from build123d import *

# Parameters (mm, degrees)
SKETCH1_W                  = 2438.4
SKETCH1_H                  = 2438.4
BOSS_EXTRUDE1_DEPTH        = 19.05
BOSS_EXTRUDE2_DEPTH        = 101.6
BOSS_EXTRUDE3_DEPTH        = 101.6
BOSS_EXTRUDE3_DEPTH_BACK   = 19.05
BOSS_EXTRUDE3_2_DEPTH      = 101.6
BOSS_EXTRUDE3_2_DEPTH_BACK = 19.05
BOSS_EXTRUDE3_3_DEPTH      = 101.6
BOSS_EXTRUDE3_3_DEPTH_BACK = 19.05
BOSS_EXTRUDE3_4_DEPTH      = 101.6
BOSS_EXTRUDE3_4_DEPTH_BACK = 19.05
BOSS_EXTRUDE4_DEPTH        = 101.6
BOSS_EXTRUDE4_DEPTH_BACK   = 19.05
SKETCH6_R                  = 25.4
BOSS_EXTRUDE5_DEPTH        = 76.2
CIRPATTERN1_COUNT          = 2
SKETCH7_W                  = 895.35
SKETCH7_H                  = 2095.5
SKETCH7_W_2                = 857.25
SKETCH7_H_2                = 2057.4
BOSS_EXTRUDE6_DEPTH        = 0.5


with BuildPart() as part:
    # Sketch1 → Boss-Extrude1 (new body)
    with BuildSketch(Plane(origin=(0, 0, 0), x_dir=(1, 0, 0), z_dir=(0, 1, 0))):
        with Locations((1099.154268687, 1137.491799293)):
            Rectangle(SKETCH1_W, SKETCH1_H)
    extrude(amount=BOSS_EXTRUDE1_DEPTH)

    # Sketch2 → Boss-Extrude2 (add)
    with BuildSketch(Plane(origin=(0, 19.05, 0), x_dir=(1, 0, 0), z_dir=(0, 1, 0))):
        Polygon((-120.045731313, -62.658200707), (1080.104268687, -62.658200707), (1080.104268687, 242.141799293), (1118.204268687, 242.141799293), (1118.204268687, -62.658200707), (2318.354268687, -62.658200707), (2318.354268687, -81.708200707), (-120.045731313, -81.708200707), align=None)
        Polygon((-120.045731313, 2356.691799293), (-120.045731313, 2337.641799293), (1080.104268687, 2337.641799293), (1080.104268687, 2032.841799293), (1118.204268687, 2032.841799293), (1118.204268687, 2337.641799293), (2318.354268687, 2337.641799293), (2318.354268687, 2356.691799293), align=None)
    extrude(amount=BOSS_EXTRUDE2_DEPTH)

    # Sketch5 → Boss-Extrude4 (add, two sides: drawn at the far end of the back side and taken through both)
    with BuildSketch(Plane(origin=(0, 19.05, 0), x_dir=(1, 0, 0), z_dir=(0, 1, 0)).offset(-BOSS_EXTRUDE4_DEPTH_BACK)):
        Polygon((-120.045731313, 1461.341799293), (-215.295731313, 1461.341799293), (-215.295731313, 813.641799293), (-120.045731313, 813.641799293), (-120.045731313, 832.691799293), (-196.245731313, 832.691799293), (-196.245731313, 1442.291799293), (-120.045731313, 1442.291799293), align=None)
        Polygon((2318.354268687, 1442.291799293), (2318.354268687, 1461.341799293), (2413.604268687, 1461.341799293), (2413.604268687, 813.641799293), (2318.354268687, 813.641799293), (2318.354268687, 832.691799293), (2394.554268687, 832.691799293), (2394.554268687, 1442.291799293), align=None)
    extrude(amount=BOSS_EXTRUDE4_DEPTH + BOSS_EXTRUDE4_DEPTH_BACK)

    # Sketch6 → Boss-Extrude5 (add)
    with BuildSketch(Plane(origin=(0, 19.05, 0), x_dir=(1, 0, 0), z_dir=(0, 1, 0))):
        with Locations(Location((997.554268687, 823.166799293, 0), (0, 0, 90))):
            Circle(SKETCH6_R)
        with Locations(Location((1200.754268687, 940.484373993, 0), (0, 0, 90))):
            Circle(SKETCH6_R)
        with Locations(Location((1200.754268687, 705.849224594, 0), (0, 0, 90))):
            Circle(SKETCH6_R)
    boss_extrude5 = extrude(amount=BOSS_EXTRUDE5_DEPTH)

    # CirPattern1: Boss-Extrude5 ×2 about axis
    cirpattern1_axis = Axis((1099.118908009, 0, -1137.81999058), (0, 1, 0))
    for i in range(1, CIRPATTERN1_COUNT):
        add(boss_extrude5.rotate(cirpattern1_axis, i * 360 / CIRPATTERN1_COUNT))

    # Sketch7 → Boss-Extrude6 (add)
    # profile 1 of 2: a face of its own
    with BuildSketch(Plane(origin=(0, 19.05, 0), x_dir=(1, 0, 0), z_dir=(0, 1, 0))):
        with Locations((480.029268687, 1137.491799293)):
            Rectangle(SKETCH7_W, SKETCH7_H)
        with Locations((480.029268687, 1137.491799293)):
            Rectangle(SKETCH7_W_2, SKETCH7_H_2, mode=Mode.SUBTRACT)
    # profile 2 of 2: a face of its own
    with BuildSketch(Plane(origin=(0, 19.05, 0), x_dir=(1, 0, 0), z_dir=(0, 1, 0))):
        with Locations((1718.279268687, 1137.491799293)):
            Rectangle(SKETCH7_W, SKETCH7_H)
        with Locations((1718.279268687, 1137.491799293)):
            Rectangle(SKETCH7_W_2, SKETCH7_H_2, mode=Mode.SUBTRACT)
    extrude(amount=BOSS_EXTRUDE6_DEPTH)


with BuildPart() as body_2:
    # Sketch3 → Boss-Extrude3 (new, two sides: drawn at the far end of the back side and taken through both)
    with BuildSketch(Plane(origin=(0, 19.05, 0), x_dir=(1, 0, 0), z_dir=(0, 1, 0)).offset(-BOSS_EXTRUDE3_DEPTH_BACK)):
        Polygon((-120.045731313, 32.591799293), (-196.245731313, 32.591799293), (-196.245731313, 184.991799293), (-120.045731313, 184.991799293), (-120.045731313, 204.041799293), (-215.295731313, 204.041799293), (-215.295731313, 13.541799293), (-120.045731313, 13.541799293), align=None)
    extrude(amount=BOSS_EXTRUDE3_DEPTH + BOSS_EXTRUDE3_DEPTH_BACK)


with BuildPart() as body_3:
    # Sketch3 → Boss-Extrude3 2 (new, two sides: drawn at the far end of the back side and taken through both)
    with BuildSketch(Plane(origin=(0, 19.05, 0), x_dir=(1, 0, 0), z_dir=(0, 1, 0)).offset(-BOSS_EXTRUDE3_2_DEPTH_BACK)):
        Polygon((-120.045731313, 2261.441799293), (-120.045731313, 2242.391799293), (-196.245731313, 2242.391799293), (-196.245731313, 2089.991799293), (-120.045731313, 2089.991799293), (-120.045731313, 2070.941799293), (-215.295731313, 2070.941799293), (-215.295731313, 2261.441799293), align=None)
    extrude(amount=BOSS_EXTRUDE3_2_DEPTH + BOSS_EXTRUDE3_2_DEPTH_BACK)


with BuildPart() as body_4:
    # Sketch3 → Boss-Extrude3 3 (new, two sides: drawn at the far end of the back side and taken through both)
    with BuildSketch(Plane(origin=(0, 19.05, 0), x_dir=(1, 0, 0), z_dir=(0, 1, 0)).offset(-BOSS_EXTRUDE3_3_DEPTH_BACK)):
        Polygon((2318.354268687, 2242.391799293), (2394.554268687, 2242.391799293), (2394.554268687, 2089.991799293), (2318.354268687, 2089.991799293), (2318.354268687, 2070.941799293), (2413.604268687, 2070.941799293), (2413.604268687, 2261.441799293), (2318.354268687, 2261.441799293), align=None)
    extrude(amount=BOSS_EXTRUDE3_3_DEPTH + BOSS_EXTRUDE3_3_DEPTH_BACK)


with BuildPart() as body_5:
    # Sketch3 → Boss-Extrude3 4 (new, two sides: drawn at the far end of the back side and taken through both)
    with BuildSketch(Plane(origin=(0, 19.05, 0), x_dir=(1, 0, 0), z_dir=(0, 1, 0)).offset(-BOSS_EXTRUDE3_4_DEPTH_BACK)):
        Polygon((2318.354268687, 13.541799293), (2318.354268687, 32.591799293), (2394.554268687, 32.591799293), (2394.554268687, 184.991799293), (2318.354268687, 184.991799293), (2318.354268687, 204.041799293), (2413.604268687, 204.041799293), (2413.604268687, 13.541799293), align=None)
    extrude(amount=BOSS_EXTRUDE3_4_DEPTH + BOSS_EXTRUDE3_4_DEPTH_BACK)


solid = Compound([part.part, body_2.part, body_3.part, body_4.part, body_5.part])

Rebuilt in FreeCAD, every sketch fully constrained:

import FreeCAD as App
import Part
import Sketcher
Q = App.Units.Quantity

doc = App.newDocument("Part")
body = doc.addObject("PartDesign::Body", "Body")

sketch1 = body.newObject("Sketcher::SketchObject", "Sketch")
sketch1.AttachmentSupport = (doc.getObject("XZ_Plane"), [""])
sketch1.MapMode = "FlatFace"
sketch1.addGeometry([
    Part.LineSegment(App.Vector(-120.045731, -2356.691799, 0), App.Vector(-120.045731, 81.708201, 0)),
    Part.LineSegment(App.Vector(-120.045731, 81.708201, 0), App.Vector(2318.354269, 81.708201, 0)),
    Part.LineSegment(App.Vector(2318.354269, 81.708201, 0), App.Vector(2318.354269, -2356.691799, 0)),
    Part.LineSegment(App.Vector(2318.354269, -2356.691799, 0), App.Vector(-120.045731, -2356.691799, 0)),
], False)
sketch1.addConstraint([
    Sketcher.Constraint("Coincident", 0, 2, 1, 1),
    Sketcher.Constraint("Coincident", 1, 2, 2, 1),
    Sketcher.Constraint("Coincident", 2, 2, 3, 1),
    Sketcher.Constraint("Coincident", 3, 2, 0, 1),
    Sketcher.Constraint("Vertical", 0),
    Sketcher.Constraint("Horizontal", 1),
    Sketcher.Constraint("Vertical", 2),
    Sketcher.Constraint("Horizontal", 3),
    Sketcher.Constraint("Equal", 3, 0),
    Sketcher.Constraint("DistanceX", 1, 1, 1, 2, Q("96 in")),
    Sketcher.Constraint("DistanceY", -1, 1, 0, 2, Q("81.708201 mm")),
    Sketcher.Constraint("DistanceX", 0, 2, -1, 1, Q("120.045731 mm")),
])
pad1 = body.newObject("PartDesign::Pad", "Pad")
pad1.Profile = sketch1
pad1.Length = Q("0.75 in")
pad1.Reversed = True

sketch2 = body.newObject("Sketcher::SketchObject", "Sketch001")
sketch2.AttachmentSupport = (doc.getObject("XZ_Plane"), [""])
sketch2.MapMode = "FlatFace"
sketch2.AttachmentOffset = App.Placement(App.Vector(0, 0, -0.75 * 25.4), App.Rotation())
sketch2.addGeometry([
    Part.LineSegment(App.Vector(1080.104269, 62.658201, 0), App.Vector(-120.045731, 62.658201, 0)),
    Part.LineSegment(App.Vector(-120.045731, 62.658201, 0), App.Vector(-120.045731, 81.708201, 0)),
    Part.LineSegment(App.Vector(-120.045731, 81.708201, 0), App.Vector(2318.354269, 81.708201, 0)),
    Part.LineSegment(App.Vector(2318.354269, 81.708201, 0), App.Vector(2318.354269, 62.658201, 0)),
    Part.LineSegment(App.Vector(2318.354269, 62.658201, 0), App.Vector(1118.204269, 62.658201, 0)),
    Part.LineSegment(App.Vector(1118.204269, 62.658201, 0), App.Vector(1118.204269, -242.141799, 0)),
    Part.LineSegment(App.Vector(1118.204269, -242.141799, 0), App.Vector(1080.104269, -242.141799, 0)),
    Part.LineSegment(App.Vector(1080.104269, -242.141799, 0), App.Vector(1080.104269, 62.658201, 0)),
    Part.LineSegment(App.Vector(-120.045731, -2356.691799, 0), App.Vector(-120.045731, -2337.641799, 0)),
    Part.LineSegment(App.Vector(-120.045731, -2337.641799, 0), App.Vector(1080.104269, -2337.641799, 0)),
    Part.LineSegment(App.Vector(1080.104269, -2337.641799, 0), App.Vector(1080.104269, -2032.841799, 0)),
    Part.LineSegment(App.Vector(1080.104269, -2032.841799, 0), App.Vector(1118.204269, -2032.841799, 0)),
    Part.LineSegment(App.Vector(1118.204269, -2032.841799, 0), App.Vector(1118.204269, -2337.641799, 0)),
    Part.LineSegment(App.Vector(1118.204269, -2337.641799, 0), App.Vector(2318.354269, -2337.641799, 0)),
    Part.LineSegment(App.Vector(2318.354269, -2337.641799, 0), App.Vector(2318.354269, -2356.691799, 0)),
    Part.LineSegment(App.Vector(2318.354269, -2356.691799, 0), App.Vector(-120.045731, -2356.691799, 0)),
], False)
sketch2.addConstraint([
    Sketcher.Constraint("Coincident", 0, 2, 1, 1),
    Sketcher.Constraint("Coincident", 1, 2, 2, 1),
    Sketcher.Constraint("Coincident", 2, 2, 3, 1),
    Sketcher.Constraint("Coincident", 3, 2, 4, 1),
    Sketcher.Constraint("Coincident", 4, 2, 5, 1),
    Sketcher.Constraint("Coincident", 5, 2, 6, 1),
    Sketcher.Constraint("Coincident", 6, 2, 7, 1),
    Sketcher.Constraint("Coincident", 7, 2, 0, 1),
    Sketcher.Constraint("Coincident", 8, 2, 9, 1),
    Sketcher.Constraint("Coincident", 9, 2, 10, 1),
    Sketcher.Constraint("Coincident", 10, 2, 11, 1),
    Sketcher.Constraint("Coincident", 11, 2, 12, 1),
    Sketcher.Constraint("Coincident", 12, 2, 13, 1),
    Sketcher.Constraint("Coincident", 13, 2, 14, 1),
    Sketcher.Constraint("Coincident", 14, 2, 15, 1),
    Sketcher.Constraint("Coincident", 15, 2, 8, 1),
    Sketcher.Constraint("Horizontal", 0),
    Sketcher.Constraint("Vertical", 1),
    Sketcher.Constraint("Horizontal", 2),
    Sketcher.Constraint("Vertical", 3),
    Sketcher.Constraint("Horizontal", 4),
    Sketcher.Constraint("Vertical", 5),
    Sketcher.Constraint("Horizontal", 6),
    Sketcher.Constraint("Vertical", 7),
    Sketcher.Constraint("Vertical", 8),
    Sketcher.Constraint("Horizontal", 9),
    Sketcher.Constraint("Vertical", 10),
    Sketcher.Constraint("Horizontal", 11),
    Sketcher.Constraint("Vertical", 12),
    Sketcher.Constraint("Horizontal", 13),
    Sketcher.Constraint("Vertical", 14),
    Sketcher.Constraint("Horizontal", 15),
    Sketcher.Constraint("Horizontal", 0, 2, 3, 2),
    Sketcher.Constraint("Horizontal", 9, 2, 12, 2),
    Sketcher.Constraint("Vertical", 1, 2, 8, 2),
    Sketcher.Constraint("Vertical", 7, 2, 9, 2),
    Sketcher.Constraint("Vertical", 5, 2, 11, 2),
    Sketcher.Constraint("Vertical", 3, 2, 13, 2),
    Sketcher.Constraint("Equal", 0, 4),
    Sketcher.Constraint("Equal", 3, 8),
    Sketcher.Constraint("Equal", 7, 10),
    Sketcher.Constraint("DistanceX", 2, 1, 2, 2, Q("96 in")),
    Sketcher.Constraint("DistanceY", 5, 2, 5, 1, Q("12 in")),
    Sketcher.Constraint("DistanceX", 6, 2, 6, 1, Q("1.5 in")),
    Sketcher.Constraint("DistanceY", 1, 1, 1, 2, Q("0.75 in")),
    Sketcher.Constraint("DistanceY", 8, 2, 0, 2, Q("94.5 in")),
    Sketcher.Constraint("DistanceY", -1, 1, 0, 2, Q("62.658201 mm")),
    Sketcher.Constraint("DistanceX", 0, 2, -1, 1, Q("120.045731 mm")),
])
pad2 = body.newObject("PartDesign::Pad", "Pad001")
pad2.Profile = sketch2
pad2.Length = Q("4 in")
pad2.Reversed = True

sketch3 = body.newObject("Sketcher::SketchObject", "Sketch002")
sketch3.AttachmentSupport = (doc.getObject("XZ_Plane"), [""])
sketch3.MapMode = "FlatFace"
sketch3.AttachmentOffset = App.Placement(App.Vector(0, 0, -0.75 * 25.4), App.Rotation())
sketch3.addGeometry([
    Part.LineSegment(App.Vector(-120.045731, -1461.341799, 0), App.Vector(-215.295731, -1461.341799, 0)),
    Part.LineSegment(App.Vector(-215.295731, -1461.341799, 0), App.Vector(-215.295731, -813.641799, 0)),
    Part.LineSegment(App.Vector(-215.295731, -813.641799, 0), App.Vector(-120.045731, -813.641799, 0)),
    Part.LineSegment(App.Vector(-120.045731, -813.641799, 0), App.Vector(-120.045731, -832.691799, 0)),
    Part.LineSegment(App.Vector(-120.045731, -832.691799, 0), App.Vector(-196.245731, -832.691799, 0)),
    Part.LineSegment(App.Vector(-196.245731, -832.691799, 0), App.Vector(-196.245731, -1442.291799, 0)),
    Part.LineSegment(App.Vector(-196.245731, -1442.291799, 0), App.Vector(-120.045731, -1442.291799, 0)),
    Part.LineSegment(App.Vector(-120.045731, -1442.291799, 0), App.Vector(-120.045731, -1461.341799, 0)),
    Part.LineSegment(App.Vector(2318.354269, -1461.341799, 0), App.Vector(2318.354269, -1442.291799, 0)),
    Part.LineSegment(App.Vector(2318.354269, -1442.291799, 0), App.Vector(2394.554269, -1442.291799, 0)),
    Part.LineSegment(App.Vector(2394.554269, -1442.291799, 0), App.Vector(2394.554269, -832.691799, 0)),
    Part.LineSegment(App.Vector(2394.554269, -832.691799, 0), App.Vector(2318.354269, -832.691799, 0)),
    Part.LineSegment(App.Vector(2318.354269, -832.691799, 0), App.Vector(2318.354269, -813.641799, 0)),
    Part.LineSegment(App.Vector(2318.354269, -813.641799, 0), App.Vector(2413.604269, -813.641799, 0)),
    Part.LineSegment(App.Vector(2413.604269, -813.641799, 0), App.Vector(2413.604269, -1461.341799, 0)),
    Part.LineSegment(App.Vector(2413.604269, -1461.341799, 0), App.Vector(2318.354269, -1461.341799, 0)),
], False)
sketch3.addConstraint([
    Sketcher.Constraint("Coincident", 0, 2, 1, 1),
    Sketcher.Constraint("Coincident", 1, 2, 2, 1),
    Sketcher.Constraint("Coincident", 2, 2, 3, 1),
    Sketcher.Constraint("Coincident", 3, 2, 4, 1),
    Sketcher.Constraint("Coincident", 4, 2, 5, 1),
    Sketcher.Constraint("Coincident", 5, 2, 6, 1),
    Sketcher.Constraint("Coincident", 6, 2, 7, 1),
    Sketcher.Constraint("Coincident", 7, 2, 0, 1),
    Sketcher.Constraint("Coincident", 8, 2, 9, 1),
    Sketcher.Constraint("Coincident", 9, 2, 10, 1),
    Sketcher.Constraint("Coincident", 10, 2, 11, 1),
    Sketcher.Constraint("Coincident", 11, 2, 12, 1),
    Sketcher.Constraint("Coincident", 12, 2, 13, 1),
    Sketcher.Constraint("Coincident", 13, 2, 14, 1),
    Sketcher.Constraint("Coincident", 14, 2, 15, 1),
    Sketcher.Constraint("Coincident", 15, 2, 8, 1),
    Sketcher.Constraint("Horizontal", 0),
    Sketcher.Constraint("Vertical", 1),
    Sketcher.Constraint("Horizontal", 2),
    Sketcher.Constraint("Vertical", 3),
    Sketcher.Constraint("Horizontal", 4),
    Sketcher.Constraint("Vertical", 5),
    Sketcher.Constraint("Horizontal", 6),
    Sketcher.Constraint("Vertical", 7),
    Sketcher.Constraint("Vertical", 8),
    Sketcher.Constraint("Horizontal", 9),
    Sketcher.Constraint("Vertical", 10),
    Sketcher.Constraint("Horizontal", 11),
    Sketcher.Constraint("Vertical", 12),
    Sketcher.Constraint("Horizontal", 13),
    Sketcher.Constraint("Vertical", 14),
    Sketcher.Constraint("Horizontal", 15),
    Sketcher.Constraint("Horizontal", 6, 2, 8, 2),
    Sketcher.Constraint("Horizontal", 4, 2, 10, 2),
    Sketcher.Constraint("Horizontal", 2, 2, 12, 2),
    Sketcher.Constraint("Horizontal", 7, 2, 14, 2),
    Sketcher.Constraint("Vertical", 3, 2, 6, 2),
    Sketcher.Constraint("Vertical", 8, 2, 11, 2),
    Sketcher.Constraint("Equal", 6, 9),
    Sketcher.Constraint("Equal", 2, 13),
    Sketcher.Constraint("Equal", 3, 7),
    Sketcher.Constraint("DistanceX", 4, 2, 4, 1, Q("3 in")),
    Sketcher.Constraint("DistanceY", 5, 2, 5, 1, Q("24 in")),
    Sketcher.Constraint("DistanceY", 1, 1, 1, 2, Q("25.5 in")),
    Sketcher.Constraint("DistanceX", 6, 2, 8, 2, Q("96 in")),
    Sketcher.Constraint("DistanceX", 0, 2, 0, 1, Q("3.75 in")),
    Sketcher.Constraint("DistanceY", 0, 2, -1, 1, Q("1461.341799 mm")),
    Sketcher.Constraint("DistanceX", 0, 2, -1, 1, Q("215.295731 mm")),
])
pad3 = body.newObject("PartDesign::Pad", "Pad002")
pad3.Profile = sketch3
pad3.Type = "TwoLengths"
pad3.Length = Q("4 in")
pad3.Length2 = Q("0.75 in")
pad3.Reversed = True

sketch4 = body.newObject("Sketcher::SketchObject", "Sketch003")
sketch4.AttachmentSupport = (doc.getObject("XZ_Plane"), [""])
sketch4.MapMode = "FlatFace"
sketch4.AttachmentOffset = App.Placement(App.Vector(0, 0, -0.75 * 25.4), App.Rotation())
sketch4.addGeometry([
    Part.Circle(App.Vector(997.554269, -823.166799, 0), App.Vector(0, 0, 1), 25.4),
    Part.Circle(App.Vector(1200.754269, -940.484374, 0), App.Vector(0, 0, 1), 25.4),
    Part.Circle(App.Vector(1200.754269, -705.849225, 0), App.Vector(0, 0, 1), 25.4),
], False)
sketch4.addConstraint([
    Sketcher.Constraint("Equal", 0, 1),
    Sketcher.Constraint("Equal", 1, 2),
    Sketcher.Constraint("Vertical", 1, 3, 2, 3),
    Sketcher.Constraint("Diameter", 0, Q("2 in")),
    Sketcher.Constraint("DistanceX", 0, 3, 1, 3, Q("8 in")),
    Sketcher.Constraint("DistanceY", 0, 3, -1, 1, Q("823.166799 mm")),
    Sketcher.Constraint("DistanceX", -1, 1, 0, 3, Q("997.554269 mm")),
    Sketcher.Constraint("DistanceY", 1, 3, 2, 3, Q("234.635149 mm")),
    Sketcher.Constraint("DistanceY", 1, 3, -1, 1, Q("940.484374 mm")),
])
pad4 = body.newObject("PartDesign::Pad", "Pad003")
pad4.Profile = sketch4
pad4.Length = Q("3 in")
pad4.Reversed = True
doc.recompute()

datumline = body.newObject("PartDesign::Line", "DatumLine")
datumline.Placement = App.Placement(App.Vector(1099.118908, 0, -1137.819991), App.Rotation(App.Vector(0, 0, 1), App.Vector(0, 1, 0)))
polarpattern = body.newObject("PartDesign::PolarPattern", "PolarPattern")
polarpattern.Originals = [pad4]
polarpattern.Axis = (datumline, [""])
polarpattern.Angle = 360
polarpattern.Occurrences = 2
body.Tip = polarpattern

sketch5 = body.newObject("Sketcher::SketchObject", "Sketch004")
sketch5.AttachmentSupport = (doc.getObject("XZ_Plane"), [""])
sketch5.MapMode = "FlatFace"
sketch5.AttachmentOffset = App.Placement(App.Vector(0, 0, -0.75 * 25.4), App.Rotation())
sketch5.addGeometry([
    Part.LineSegment(App.Vector(32.354269, -2185.241799, 0), App.Vector(32.354269, -89.741799, 0)),
    Part.LineSegment(App.Vector(32.354269, -89.741799, 0), App.Vector(927.704269, -89.741799, 0)),
    Part.LineSegment(App.Vector(927.704269, -89.741799, 0), App.Vector(927.704269, -2185.241799, 0)),
    Part.LineSegment(App.Vector(927.704269, -2185.241799, 0), App.Vector(32.354269, -2185.241799, 0)),
    Part.LineSegment(App.Vector(908.654269, -108.791799, 0), App.Vector(51.404269, -108.791799, 0)),
    Part.LineSegment(App.Vector(51.404269, -108.791799, 0), App.Vector(51.404269, -2166.191799, 0)),
    Part.LineSegment(App.Vector(51.404269, -2166.191799, 0), App.Vector(908.654269, -2166.191799, 0)),
    Part.LineSegment(App.Vector(908.654269, -2166.191799, 0), App.Vector(908.654269, -108.791799, 0)),
    Part.LineSegment(App.Vector(1270.604269, -2185.241799, 0), App.Vector(1270.604269, -89.741799, 0)),
    Part.LineSegment(App.Vector(1270.604269, -89.741799, 0), App.Vector(2165.954269, -89.741799, 0)),
    Part.LineSegment(App.Vector(2165.954269, -89.741799, 0), App.Vector(2165.954269, -2185.241799, 0)),
    Part.LineSegment(App.Vector(2165.954269, -2185.241799, 0), App.Vector(1270.604269, -2185.241799, 0)),
    Part.LineSegment(App.Vector(2146.904269, -108.791799, 0), App.Vector(1289.654269, -108.791799, 0)),
    Part.LineSegment(App.Vector(1289.654269, -108.791799, 0), App.Vector(1289.654269, -2166.191799, 0)),
    Part.LineSegment(App.Vector(1289.654269, -2166.191799, 0), App.Vector(2146.904269, -2166.191799, 0)),
    Part.LineSegment(App.Vector(2146.904269, -2166.191799, 0), App.Vector(2146.904269, -108.791799, 0)),
], False)
sketch5.addConstraint([
    Sketcher.Constraint("Coincident", 0, 2, 1, 1),
    Sketcher.Constraint("Coincident", 1, 2, 2, 1),
    Sketcher.Constraint("Coincident", 2, 2, 3, 1),
    Sketcher.Constraint("Coincident", 3, 2, 0, 1),
    Sketcher.Constraint("Coincident", 4, 2, 5, 1),
    Sketcher.Constraint("Coincident", 5, 2, 6, 1),
    Sketcher.Constraint("Coincident", 6, 2, 7, 1),
    Sketcher.Constraint("Coincident", 7, 2, 4, 1),
    Sketcher.Constraint("Coincident", 8, 2, 9, 1),
    Sketcher.Constraint("Coincident", 9, 2, 10, 1),
    Sketcher.Constraint("Coincident", 10, 2, 11, 1),
    Sketcher.Constraint("Coincident", 11, 2, 8, 1),
    Sketcher.Constraint("Coincident", 12, 2, 13, 1),
    Sketcher.Constraint("Coincident", 13, 2, 14, 1),
    Sketcher.Constraint("Coincident", 14, 2, 15, 1),
    Sketcher.Constraint("Coincident", 15, 2, 12, 1),
    Sketcher.Constraint("Vertical", 0),
    Sketcher.Constraint("Horizontal", 1),
    Sketcher.Constraint("Vertical", 2),
    Sketcher.Constraint("Horizontal", 3),
    Sketcher.Constraint("Horizontal", 4),
    Sketcher.Constraint("Vertical", 5),
    Sketcher.Constraint("Horizontal", 6),
    Sketcher.Constraint("Vertical", 7),
    Sketcher.Constraint("Vertical", 8),
    Sketcher.Constraint("Horizontal", 9),
    Sketcher.Constraint("Vertical", 10),
    Sketcher.Constraint("Horizontal", 11),
    Sketcher.Constraint("Horizontal", 12),
    Sketcher.Constraint("Vertical", 13),
    Sketcher.Constraint("Horizontal", 14),
    Sketcher.Constraint("Vertical", 15),
    Sketcher.Constraint("Horizontal", 1, 2, 8, 2),
    Sketcher.Constraint("Horizontal", 3, 2, 10, 2),
    Sketcher.Constraint("Horizontal", 7, 2, 12, 2),
    Sketcher.Constraint("Horizontal", 6, 2, 13, 2),
    Sketcher.Constraint("Equal", 3, 9),
    Sketcher.Constraint("Equal", 6, 12),
    Sketcher.Constraint("DistanceY", 5, 2, 5, 1, Q("81 in")),
    Sketcher.Constraint("DistanceY", 0, 1, 0, 2, Q("82.5 in")),
    Sketcher.Constraint("DistanceX", 4, 2, 8, 2, Q("48 in")),
    Sketcher.Constraint("DistanceX", 0, 2, 9, 2, Q("84 in")),
    Sketcher.Constraint("DistanceX", 7, 2, 12, 2, Q("15 in")),
    Sketcher.Constraint("DistanceX", 2, 2, 14, 2, Q("48 in")),
    Sketcher.Constraint("DistanceX", 1, 1, 1, 2, Q("35.25 in")),
    Sketcher.Constraint("DistanceY", 4, 2, 0, 2, Q("0.75 in")),
    Sketcher.Constraint("DistanceY", 0, 2, -1, 1, Q("89.741799 mm")),
    Sketcher.Constraint("DistanceX", -1, 1, 0, 2, Q("32.354269 mm")),
])
pad5 = body.newObject("PartDesign::Pad", "Pad004")
pad5.Profile = sketch5
pad5.Length = 0.5
pad5.Reversed = True
body2 = doc.addObject("PartDesign::Body", "Body001")

sketch6 = body2.newObject("Sketcher::SketchObject", "Sketch005")
sketch6.AttachmentSupport = (doc.getObject("XZ_Plane001"), [""])
sketch6.MapMode = "FlatFace"
sketch6.AttachmentOffset = App.Placement(App.Vector(0, 0, -0.75 * 25.4), App.Rotation())
sketch6.addGeometry([
    Part.LineSegment(App.Vector(-120.045731, -32.591799, 0), App.Vector(-196.245731, -32.591799, 0)),
    Part.LineSegment(App.Vector(-196.245731, -32.591799, 0), App.Vector(-196.245731, -184.991799, 0)),
    Part.LineSegment(App.Vector(-196.245731, -184.991799, 0), App.Vector(-120.045731, -184.991799, 0)),
    Part.LineSegment(App.Vector(-120.045731, -184.991799, 0), App.Vector(-120.045731, -204.041799, 0)),
    Part.LineSegment(App.Vector(-120.045731, -204.041799, 0), App.Vector(-215.295731, -204.041799, 0)),
    Part.LineSegment(App.Vector(-215.295731, -204.041799, 0), App.Vector(-215.295731, -13.541799, 0)),
    Part.LineSegment(App.Vector(-215.295731, -13.541799, 0), App.Vector(-120.045731, -13.541799, 0)),
    Part.LineSegment(App.Vector(-120.045731, -13.541799, 0), App.Vector(-120.045731, -32.591799, 0)),
], False)
sketch6.addConstraint([
    Sketcher.Constraint("Coincident", 0, 2, 1, 1),
    Sketcher.Constraint("Coincident", 1, 2, 2, 1),
    Sketcher.Constraint("Coincident", 2, 2, 3, 1),
    Sketcher.Constraint("Coincident", 3, 2, 4, 1),
    Sketcher.Constraint("Coincident", 4, 2, 5, 1),
    Sketcher.Constraint("Coincident", 5, 2, 6, 1),
    Sketcher.Constraint("Coincident", 6, 2, 7, 1),
    Sketcher.Constraint("Coincident", 7, 2, 0, 1),
    Sketcher.Constraint("Horizontal", 0),
    Sketcher.Constraint("Vertical", 1),
    Sketcher.Constraint("Horizontal", 2),
    Sketcher.Constraint("Vertical", 3),
    Sketcher.Constraint("Horizontal", 4),
    Sketcher.Constraint("Vertical", 5),
    Sketcher.Constraint("Horizontal", 6),
    Sketcher.Constraint("Vertical", 7),
    Sketcher.Constraint("Vertical", 3, 2, 6, 2),
    Sketcher.Constraint("Equal", 3, 7),
    Sketcher.Constraint("DistanceX", 0, 2, 0, 1, Q("3 in")),
    Sketcher.Constraint("DistanceY", 1, 2, 1, 1, Q("6 in")),
    Sketcher.Constraint("DistanceY", 5, 1, 5, 2, Q("7.5 in")),
    Sketcher.Constraint("DistanceX", 4, 2, 4, 1, Q("3.75 in")),
    Sketcher.Constraint("DistanceY", 0, 2, -1, 1, Q("32.591799 mm")),
    Sketcher.Constraint("DistanceX", 0, 2, -1, 1, Q("196.245731 mm")),
])
pad6 = body2.newObject("PartDesign::Pad", "Pad005")
pad6.Profile = sketch6
pad6.Type = "TwoLengths"
pad6.Length = Q("4 in")
pad6.Length2 = Q("0.75 in")
pad6.Reversed = True
body3 = doc.addObject("PartDesign::Body", "Body002")

sketch7 = body3.newObject("Sketcher::SketchObject", "Sketch006")
sketch7.AttachmentSupport = (doc.getObject("XZ_Plane002"), [""])
sketch7.MapMode = "FlatFace"
sketch7.AttachmentOffset = App.Placement(App.Vector(0, 0, -0.75 * 25.4), App.Rotation())
sketch7.addGeometry([
    Part.LineSegment(App.Vector(-120.045731, -2242.391799, 0), App.Vector(-120.045731, -2261.441799, 0)),
    Part.LineSegment(App.Vector(-120.045731, -2261.441799, 0), App.Vector(-215.295731, -2261.441799, 0)),
    Part.LineSegment(App.Vector(-215.295731, -2261.441799, 0), App.Vector(-215.295731, -2070.941799, 0)),
    Part.LineSegment(App.Vector(-215.295731, -2070.941799, 0), App.Vector(-120.045731, -2070.941799, 0)),
    Part.LineSegment(App.Vector(-120.045731, -2070.941799, 0), App.Vector(-120.045731, -2089.991799, 0)),
    Part.LineSegment(App.Vector(-120.045731, -2089.991799, 0), App.Vector(-196.245731, -2089.991799, 0)),
    Part.LineSegment(App.Vector(-196.245731, -2089.991799, 0), App.Vector(-196.245731, -2242.391799, 0)),
    Part.LineSegment(App.Vector(-196.245731, -2242.391799, 0), App.Vector(-120.045731, -2242.391799, 0)),
], False)
sketch7.addConstraint([
    Sketcher.Constraint("Coincident", 0, 2, 1, 1),
    Sketcher.Constraint("Coincident", 1, 2, 2, 1),
    Sketcher.Constraint("Coincident", 2, 2, 3, 1),
    Sketcher.Constraint("Coincident", 3, 2, 4, 1),
    Sketcher.Constraint("Coincident", 4, 2, 5, 1),
    Sketcher.Constraint("Coincident", 5, 2, 6, 1),
    Sketcher.Constraint("Coincident", 6, 2, 7, 1),
    Sketcher.Constraint("Coincident", 7, 2, 0, 1),
    Sketcher.Constraint("Vertical", 0),
    Sketcher.Constraint("Horizontal", 1),
    Sketcher.Constraint("Vertical", 2),
    Sketcher.Constraint("Horizontal", 3),
    Sketcher.Constraint("Vertical", 4),
    Sketcher.Constraint("Horizontal", 5),
    Sketcher.Constraint("Vertical", 6),
    Sketcher.Constraint("Horizontal", 7),
    Sketcher.Constraint("Vertical", 0, 2, 3, 2),
    Sketcher.Constraint("Equal", 0, 4),
    Sketcher.Constraint("DistanceX", 5, 2, 5, 1, Q("3 in")),
    Sketcher.Constraint("DistanceY", 6, 2, 6, 1, Q("6 in")),
    Sketcher.Constraint("DistanceY", 2, 1, 2, 2, Q("7.5 in")),
    Sketcher.Constraint("DistanceX", 1, 2, 1, 1, Q("3.75 in")),
    Sketcher.Constraint("DistanceY", 0, 2, -1, 1, Q("2261.441799 mm")),
    Sketcher.Constraint("DistanceX", 0, 2, -1, 1, Q("120.045731 mm")),
])
pad7 = body3.newObject("PartDesign::Pad", "Pad006")
pad7.Profile = sketch7
pad7.Type = "TwoLengths"
pad7.Length = Q("4 in")
pad7.Length2 = Q("0.75 in")
pad7.Reversed = True
body4 = doc.addObject("PartDesign::Body", "Body003")

sketch8 = body4.newObject("Sketcher::SketchObject", "Sketch007")
sketch8.AttachmentSupport = (doc.getObject("XZ_Plane003"), [""])
sketch8.MapMode = "FlatFace"
sketch8.AttachmentOffset = App.Placement(App.Vector(0, 0, -0.75 * 25.4), App.Rotation())
sketch8.addGeometry([
    Part.LineSegment(App.Vector(2318.354269, -2242.391799, 0), App.Vector(2394.554269, -2242.391799, 0)),
    Part.LineSegment(App.Vector(2394.554269, -2242.391799, 0), App.Vector(2394.554269, -2089.991799, 0)),
    Part.LineSegment(App.Vector(2394.554269, -2089.991799, 0), App.Vector(2318.354269, -2089.991799, 0)),
    Part.LineSegment(App.Vector(2318.354269, -2089.991799, 0), App.Vector(2318.354269, -2070.941799, 0)),
    Part.LineSegment(App.Vector(2318.354269, -2070.941799, 0), App.Vector(2413.604269, -2070.941799, 0)),
    Part.LineSegment(App.Vector(2413.604269, -2070.941799, 0), App.Vector(2413.604269, -2261.441799, 0)),
    Part.LineSegment(App.Vector(2413.604269, -2261.441799, 0), App.Vector(2318.354269, -2261.441799, 0)),
    Part.LineSegment(App.Vector(2318.354269, -2261.441799, 0), App.Vector(2318.354269, -2242.391799, 0)),
], False)
sketch8.addConstraint([
    Sketcher.Constraint("Coincident", 0, 2, 1, 1),
    Sketcher.Constraint("Coincident", 1, 2, 2, 1),
    Sketcher.Constraint("Coincident", 2, 2, 3, 1),
    Sketcher.Constraint("Coincident", 3, 2, 4, 1),
    Sketcher.Constraint("Coincident", 4, 2, 5, 1),
    Sketcher.Constraint("Coincident", 5, 2, 6, 1),
    Sketcher.Constraint("Coincident", 6, 2, 7, 1),
    Sketcher.Constraint("Coincident", 7, 2, 0, 1),
    Sketcher.Constraint("Horizontal", 0),
    Sketcher.Constraint("Vertical", 1),
    Sketcher.Constraint("Horizontal", 2),
    Sketcher.Constraint("Vertical", 3),
    Sketcher.Constraint("Horizontal", 4),
    Sketcher.Constraint("Vertical", 5),
    Sketcher.Constraint("Horizontal", 6),
    Sketcher.Constraint("Vertical", 7),
    Sketcher.Constraint("Vertical", 3, 2, 6, 2),
    Sketcher.Constraint("Equal", 3, 7),
    Sketcher.Constraint("DistanceX", 0, 1, 0, 2, Q("3 in")),
    Sketcher.Constraint("DistanceY", 1, 1, 1, 2, Q("6 in")),
    Sketcher.Constraint("DistanceY", 5, 2, 5, 1, Q("7.5 in")),
    Sketcher.Constraint("DistanceX", 4, 1, 4, 2, Q("3.75 in")),
    Sketcher.Constraint("DistanceY", 0, 2, -1, 1, Q("2242.391799 mm")),
    Sketcher.Constraint("DistanceX", -1, 1, 0, 2, Q("2394.554269 mm")),
])
pad8 = body4.newObject("PartDesign::Pad", "Pad007")
pad8.Profile = sketch8
pad8.Type = "TwoLengths"
pad8.Length = Q("4 in")
pad8.Length2 = Q("0.75 in")
pad8.Reversed = True
body5 = doc.addObject("PartDesign::Body", "Body004")

sketch9 = body5.newObject("Sketcher::SketchObject", "Sketch008")
sketch9.AttachmentSupport = (doc.getObject("XZ_Plane004"), [""])
sketch9.MapMode = "FlatFace"
sketch9.AttachmentOffset = App.Placement(App.Vector(0, 0, -0.75 * 25.4), App.Rotation())
sketch9.addGeometry([
    Part.LineSegment(App.Vector(2318.354269, -32.591799, 0), App.Vector(2318.354269, -13.541799, 0)),
    Part.LineSegment(App.Vector(2318.354269, -13.541799, 0), App.Vector(2413.604269, -13.541799, 0)),
    Part.LineSegment(App.Vector(2413.604269, -13.541799, 0), App.Vector(2413.604269, -204.041799, 0)),
    Part.LineSegment(App.Vector(2413.604269, -204.041799, 0), App.Vector(2318.354269, -204.041799, 0)),
    Part.LineSegment(App.Vector(2318.354269, -204.041799, 0), App.Vector(2318.354269, -184.991799, 0)),
    Part.LineSegment(App.Vector(2318.354269, -184.991799, 0), App.Vector(2394.554269, -184.991799, 0)),
    Part.LineSegment(App.Vector(2394.554269, -184.991799, 0), App.Vector(2394.554269, -32.591799, 0)),
    Part.LineSegment(App.Vector(2394.554269, -32.591799, 0), App.Vector(2318.354269, -32.591799, 0)),
], False)
sketch9.addConstraint([
    Sketcher.Constraint("Coincident", 0, 2, 1, 1),
    Sketcher.Constraint("Coincident", 1, 2, 2, 1),
    Sketcher.Constraint("Coincident", 2, 2, 3, 1),
    Sketcher.Constraint("Coincident", 3, 2, 4, 1),
    Sketcher.Constraint("Coincident", 4, 2, 5, 1),
    Sketcher.Constraint("Coincident", 5, 2, 6, 1),
    Sketcher.Constraint("Coincident", 6, 2, 7, 1),
    Sketcher.Constraint("Coincident", 7, 2, 0, 1),
    Sketcher.Constraint("Vertical", 0),
    Sketcher.Constraint("Horizontal", 1),
    Sketcher.Constraint("Vertical", 2),
    Sketcher.Constraint("Horizontal", 3),
    Sketcher.Constraint("Vertical", 4),
    Sketcher.Constraint("Horizontal", 5),
    Sketcher.Constraint("Vertical", 6),
    Sketcher.Constraint("Horizontal", 7),
    Sketcher.Constraint("Vertical", 0, 2, 3, 2),
    Sketcher.Constraint("Equal", 0, 4),
    Sketcher.Constraint("DistanceX", 5, 1, 5, 2, Q("3 in")),
    Sketcher.Constraint("DistanceY", 6, 1, 6, 2, Q("6 in")),
    Sketcher.Constraint("DistanceY", 2, 2, 2, 1, Q("7.5 in")),
    Sketcher.Constraint("DistanceX", 1, 1, 1, 2, Q("3.75 in")),
    Sketcher.Constraint("DistanceY", 0, 2, -1, 1, Q("13.541799 mm")),
    Sketcher.Constraint("DistanceX", -1, 1, 0, 2, Q("2318.354269 mm")),
])
pad9 = body5.newObject("PartDesign::Pad", "Pad008")
pad9.Profile = sketch9
pad9.Type = "TwoLengths"
pad9.Length = Q("4 in")
pad9.Length2 = Q("0.75 in")
pad9.Reversed = True

doc.recompute()
